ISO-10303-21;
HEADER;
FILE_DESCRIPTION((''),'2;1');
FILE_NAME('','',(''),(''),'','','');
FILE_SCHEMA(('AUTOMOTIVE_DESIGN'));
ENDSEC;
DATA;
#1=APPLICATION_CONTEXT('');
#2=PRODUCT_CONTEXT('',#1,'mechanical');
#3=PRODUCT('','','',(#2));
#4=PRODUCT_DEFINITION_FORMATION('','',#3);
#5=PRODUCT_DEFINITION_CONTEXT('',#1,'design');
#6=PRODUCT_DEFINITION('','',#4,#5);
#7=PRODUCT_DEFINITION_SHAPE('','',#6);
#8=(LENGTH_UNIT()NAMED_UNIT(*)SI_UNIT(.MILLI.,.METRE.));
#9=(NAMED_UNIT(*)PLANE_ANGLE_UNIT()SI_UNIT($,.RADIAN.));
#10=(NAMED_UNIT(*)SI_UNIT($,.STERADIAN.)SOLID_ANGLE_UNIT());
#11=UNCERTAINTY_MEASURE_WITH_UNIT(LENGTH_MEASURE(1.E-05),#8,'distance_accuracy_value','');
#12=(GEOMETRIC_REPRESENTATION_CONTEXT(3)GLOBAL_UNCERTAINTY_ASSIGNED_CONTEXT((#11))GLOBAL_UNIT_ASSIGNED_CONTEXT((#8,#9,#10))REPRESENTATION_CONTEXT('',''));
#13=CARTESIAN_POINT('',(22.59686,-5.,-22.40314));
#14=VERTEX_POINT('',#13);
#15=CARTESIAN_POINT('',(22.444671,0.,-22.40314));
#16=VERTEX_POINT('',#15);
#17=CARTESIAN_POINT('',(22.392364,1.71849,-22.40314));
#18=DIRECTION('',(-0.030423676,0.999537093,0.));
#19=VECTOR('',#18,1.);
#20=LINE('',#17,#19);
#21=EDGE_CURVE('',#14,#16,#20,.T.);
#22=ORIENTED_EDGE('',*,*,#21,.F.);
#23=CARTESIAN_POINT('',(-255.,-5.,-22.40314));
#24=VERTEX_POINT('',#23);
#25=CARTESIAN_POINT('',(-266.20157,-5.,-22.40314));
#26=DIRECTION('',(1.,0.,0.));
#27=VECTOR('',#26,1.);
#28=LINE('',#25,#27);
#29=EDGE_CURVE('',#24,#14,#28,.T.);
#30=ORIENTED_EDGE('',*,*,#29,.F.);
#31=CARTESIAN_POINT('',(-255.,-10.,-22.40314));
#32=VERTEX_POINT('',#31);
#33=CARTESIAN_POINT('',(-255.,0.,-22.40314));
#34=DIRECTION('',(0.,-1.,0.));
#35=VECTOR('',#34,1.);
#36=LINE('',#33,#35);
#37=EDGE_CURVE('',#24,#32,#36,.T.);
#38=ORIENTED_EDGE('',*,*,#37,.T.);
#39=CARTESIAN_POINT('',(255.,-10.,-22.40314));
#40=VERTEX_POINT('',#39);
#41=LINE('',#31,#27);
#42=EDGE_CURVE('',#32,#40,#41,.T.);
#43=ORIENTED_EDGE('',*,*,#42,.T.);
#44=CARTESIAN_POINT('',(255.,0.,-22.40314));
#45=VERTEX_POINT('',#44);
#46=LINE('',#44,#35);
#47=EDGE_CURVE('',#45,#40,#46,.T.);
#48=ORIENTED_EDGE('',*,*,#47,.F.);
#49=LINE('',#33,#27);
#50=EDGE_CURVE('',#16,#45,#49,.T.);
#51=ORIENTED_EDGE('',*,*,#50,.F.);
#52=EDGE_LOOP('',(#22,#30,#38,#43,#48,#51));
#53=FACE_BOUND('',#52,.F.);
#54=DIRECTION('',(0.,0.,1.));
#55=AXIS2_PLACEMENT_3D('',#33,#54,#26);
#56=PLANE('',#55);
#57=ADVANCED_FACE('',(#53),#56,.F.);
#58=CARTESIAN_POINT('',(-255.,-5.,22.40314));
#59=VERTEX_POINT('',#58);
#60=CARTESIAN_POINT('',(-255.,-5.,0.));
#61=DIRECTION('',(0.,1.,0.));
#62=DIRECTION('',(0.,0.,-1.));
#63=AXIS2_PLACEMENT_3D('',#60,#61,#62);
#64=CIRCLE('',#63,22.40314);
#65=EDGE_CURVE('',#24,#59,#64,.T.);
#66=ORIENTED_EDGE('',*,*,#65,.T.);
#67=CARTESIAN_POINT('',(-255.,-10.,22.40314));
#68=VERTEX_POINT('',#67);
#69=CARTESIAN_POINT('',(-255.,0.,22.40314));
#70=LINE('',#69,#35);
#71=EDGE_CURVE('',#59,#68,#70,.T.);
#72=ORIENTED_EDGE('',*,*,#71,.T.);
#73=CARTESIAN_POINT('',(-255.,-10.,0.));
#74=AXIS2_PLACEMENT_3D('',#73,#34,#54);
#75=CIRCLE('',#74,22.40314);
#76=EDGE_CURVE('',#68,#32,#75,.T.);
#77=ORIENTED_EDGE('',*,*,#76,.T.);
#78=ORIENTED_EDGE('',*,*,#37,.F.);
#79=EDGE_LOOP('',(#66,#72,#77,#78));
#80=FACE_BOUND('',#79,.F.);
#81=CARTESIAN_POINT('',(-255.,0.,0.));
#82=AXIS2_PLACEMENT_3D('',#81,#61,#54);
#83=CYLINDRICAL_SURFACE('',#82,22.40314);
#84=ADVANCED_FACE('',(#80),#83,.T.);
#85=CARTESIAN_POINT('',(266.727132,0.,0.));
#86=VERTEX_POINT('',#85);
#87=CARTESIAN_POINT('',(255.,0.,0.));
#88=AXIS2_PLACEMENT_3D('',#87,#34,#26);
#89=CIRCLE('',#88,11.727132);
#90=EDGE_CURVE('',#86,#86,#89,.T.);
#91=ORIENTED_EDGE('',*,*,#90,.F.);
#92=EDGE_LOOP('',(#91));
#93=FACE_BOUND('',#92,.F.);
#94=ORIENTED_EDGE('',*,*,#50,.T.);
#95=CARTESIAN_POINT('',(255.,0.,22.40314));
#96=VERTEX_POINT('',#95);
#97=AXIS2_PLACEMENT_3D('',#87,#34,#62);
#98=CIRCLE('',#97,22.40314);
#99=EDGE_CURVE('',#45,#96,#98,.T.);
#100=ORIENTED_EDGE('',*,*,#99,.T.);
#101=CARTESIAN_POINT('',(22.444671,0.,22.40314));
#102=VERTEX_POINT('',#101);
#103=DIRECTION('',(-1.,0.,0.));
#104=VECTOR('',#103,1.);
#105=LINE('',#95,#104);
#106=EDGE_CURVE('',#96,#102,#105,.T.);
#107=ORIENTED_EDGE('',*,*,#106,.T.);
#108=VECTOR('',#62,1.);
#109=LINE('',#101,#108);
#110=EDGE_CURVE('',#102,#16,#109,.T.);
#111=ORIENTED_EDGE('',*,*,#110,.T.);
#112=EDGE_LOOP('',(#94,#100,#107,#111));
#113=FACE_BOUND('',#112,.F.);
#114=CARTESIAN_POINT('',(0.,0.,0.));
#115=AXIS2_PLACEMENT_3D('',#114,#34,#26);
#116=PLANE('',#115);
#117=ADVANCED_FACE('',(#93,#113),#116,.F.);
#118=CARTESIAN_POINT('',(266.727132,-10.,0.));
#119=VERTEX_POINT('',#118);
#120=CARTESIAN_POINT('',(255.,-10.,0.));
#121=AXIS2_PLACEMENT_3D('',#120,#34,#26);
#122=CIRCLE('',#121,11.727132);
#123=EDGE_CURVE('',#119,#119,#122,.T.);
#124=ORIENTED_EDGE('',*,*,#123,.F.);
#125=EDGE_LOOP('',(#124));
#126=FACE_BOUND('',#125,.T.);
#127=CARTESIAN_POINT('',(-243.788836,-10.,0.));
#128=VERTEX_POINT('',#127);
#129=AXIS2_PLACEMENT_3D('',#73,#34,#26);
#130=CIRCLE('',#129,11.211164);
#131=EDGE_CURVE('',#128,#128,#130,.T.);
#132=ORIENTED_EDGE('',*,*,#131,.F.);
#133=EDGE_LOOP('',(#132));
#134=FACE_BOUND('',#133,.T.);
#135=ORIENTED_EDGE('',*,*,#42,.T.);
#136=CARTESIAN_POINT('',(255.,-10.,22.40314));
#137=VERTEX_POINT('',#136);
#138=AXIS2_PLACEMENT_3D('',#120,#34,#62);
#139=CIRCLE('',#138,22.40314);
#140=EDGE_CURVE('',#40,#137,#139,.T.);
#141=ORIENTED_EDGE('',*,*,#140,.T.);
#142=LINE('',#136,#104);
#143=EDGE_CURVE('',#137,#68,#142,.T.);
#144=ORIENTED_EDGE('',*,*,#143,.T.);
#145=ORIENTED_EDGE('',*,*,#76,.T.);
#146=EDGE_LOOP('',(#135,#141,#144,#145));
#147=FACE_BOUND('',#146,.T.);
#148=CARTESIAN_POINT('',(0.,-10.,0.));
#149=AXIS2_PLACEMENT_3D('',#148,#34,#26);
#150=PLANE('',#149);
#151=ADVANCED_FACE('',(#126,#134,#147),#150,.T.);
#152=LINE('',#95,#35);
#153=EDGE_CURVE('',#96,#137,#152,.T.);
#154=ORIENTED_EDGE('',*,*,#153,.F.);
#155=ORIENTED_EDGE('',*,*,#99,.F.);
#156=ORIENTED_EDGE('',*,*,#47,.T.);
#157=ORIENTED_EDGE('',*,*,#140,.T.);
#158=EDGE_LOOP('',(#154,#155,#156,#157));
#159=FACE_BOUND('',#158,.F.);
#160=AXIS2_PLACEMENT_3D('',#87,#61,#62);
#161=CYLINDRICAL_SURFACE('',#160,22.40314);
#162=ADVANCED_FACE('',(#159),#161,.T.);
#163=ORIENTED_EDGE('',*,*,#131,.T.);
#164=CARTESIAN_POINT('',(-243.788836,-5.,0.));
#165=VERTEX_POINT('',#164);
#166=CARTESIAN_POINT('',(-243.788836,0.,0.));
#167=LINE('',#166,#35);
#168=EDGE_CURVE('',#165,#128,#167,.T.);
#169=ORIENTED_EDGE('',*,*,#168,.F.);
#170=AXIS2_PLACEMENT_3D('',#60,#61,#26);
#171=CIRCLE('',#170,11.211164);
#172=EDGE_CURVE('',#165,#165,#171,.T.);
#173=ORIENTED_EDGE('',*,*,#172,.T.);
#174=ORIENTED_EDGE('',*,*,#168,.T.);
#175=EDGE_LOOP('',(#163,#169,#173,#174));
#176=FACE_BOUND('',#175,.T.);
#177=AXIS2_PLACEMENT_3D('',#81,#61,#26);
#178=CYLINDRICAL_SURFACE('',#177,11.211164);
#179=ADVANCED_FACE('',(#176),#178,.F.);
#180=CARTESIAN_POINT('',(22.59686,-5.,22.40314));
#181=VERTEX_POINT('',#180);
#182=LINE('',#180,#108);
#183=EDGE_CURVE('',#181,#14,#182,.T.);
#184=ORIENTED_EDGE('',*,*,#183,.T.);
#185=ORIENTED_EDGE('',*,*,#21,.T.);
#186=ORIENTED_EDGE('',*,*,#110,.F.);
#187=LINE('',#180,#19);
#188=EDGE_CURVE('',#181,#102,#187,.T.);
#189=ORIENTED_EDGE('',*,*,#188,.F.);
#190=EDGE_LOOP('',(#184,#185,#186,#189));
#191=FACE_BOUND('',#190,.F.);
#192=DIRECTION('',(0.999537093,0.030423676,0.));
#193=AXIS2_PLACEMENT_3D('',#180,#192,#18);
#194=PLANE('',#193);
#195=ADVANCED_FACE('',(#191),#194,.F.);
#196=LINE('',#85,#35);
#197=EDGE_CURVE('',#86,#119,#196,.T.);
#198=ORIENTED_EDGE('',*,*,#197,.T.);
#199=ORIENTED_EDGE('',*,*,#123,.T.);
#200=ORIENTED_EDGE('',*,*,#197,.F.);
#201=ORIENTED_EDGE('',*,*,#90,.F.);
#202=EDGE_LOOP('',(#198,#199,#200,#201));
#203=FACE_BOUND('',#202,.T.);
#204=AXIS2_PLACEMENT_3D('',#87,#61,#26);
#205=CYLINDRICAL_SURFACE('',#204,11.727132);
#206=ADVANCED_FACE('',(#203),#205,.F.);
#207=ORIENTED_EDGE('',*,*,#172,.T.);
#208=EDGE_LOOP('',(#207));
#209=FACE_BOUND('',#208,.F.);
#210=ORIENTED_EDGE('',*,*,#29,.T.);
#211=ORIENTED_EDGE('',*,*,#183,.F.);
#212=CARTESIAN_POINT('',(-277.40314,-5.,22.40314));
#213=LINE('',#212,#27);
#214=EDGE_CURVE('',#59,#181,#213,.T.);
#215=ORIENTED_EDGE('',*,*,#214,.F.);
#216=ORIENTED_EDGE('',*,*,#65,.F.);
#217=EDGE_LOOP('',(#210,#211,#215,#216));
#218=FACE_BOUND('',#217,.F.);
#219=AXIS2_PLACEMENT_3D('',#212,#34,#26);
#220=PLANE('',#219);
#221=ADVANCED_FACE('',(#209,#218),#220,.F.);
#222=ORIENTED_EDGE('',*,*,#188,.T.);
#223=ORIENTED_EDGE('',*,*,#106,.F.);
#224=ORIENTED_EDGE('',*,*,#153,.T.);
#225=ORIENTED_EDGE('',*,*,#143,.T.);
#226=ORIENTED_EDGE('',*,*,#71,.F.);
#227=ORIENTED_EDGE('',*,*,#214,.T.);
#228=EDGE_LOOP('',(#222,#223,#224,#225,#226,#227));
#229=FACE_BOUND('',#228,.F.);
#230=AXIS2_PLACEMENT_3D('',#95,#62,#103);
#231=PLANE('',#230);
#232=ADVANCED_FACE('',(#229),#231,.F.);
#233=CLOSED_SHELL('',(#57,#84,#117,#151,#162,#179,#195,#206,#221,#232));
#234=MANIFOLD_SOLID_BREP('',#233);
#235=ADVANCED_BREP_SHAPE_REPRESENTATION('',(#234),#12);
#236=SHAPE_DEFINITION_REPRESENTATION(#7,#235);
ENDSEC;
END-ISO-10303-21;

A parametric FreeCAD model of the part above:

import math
import FreeCAD as App
import Part
import Sketcher

V = App.Vector
Q = App.Units.Quantity


def add_polygon(sketch, points):
    """Adds a closed chain of lines whose ends are joined by coincident constraints."""
    first, n = sketch.GeometryCount, len(points)
    for a, b in zip(points, points[1:] + points[:1]):
        sketch.addGeometry(Part.LineSegment(App.Vector(*a, 0), App.Vector(*b, 0)), False)
    for i in range(n):
        sketch.addConstraint(Sketcher.Constraint("Coincident", first + i, 2, first + (i + 1) % n, 1))

doc = App.newDocument("Part")
body = doc.addObject("PartDesign::Body", "Body")

# Sketch on XZ plane
sketch1 = body.newObject("Sketcher::SketchObject", "Sketch")
sketch1.AttachmentSupport = (doc.getObject("XZ_Plane"), [""])
sketch1.MapMode = "FlatFace"
sketch1.addGeometry(Part.ArcOfCircle(Part.Circle(V(255, 0, 0), V(0, 0, 1), 22), math.radians(-90), math.radians(90)), False)
sketch1.addGeometry(Part.LineSegment(V(255, 22, 0), V(-255, 22, 0)), False)
sketch1.addGeometry(Part.ArcOfCircle(Part.Circle(V(-255, 0, 0), V(0, 0, 1), 22), math.radians(90), math.radians(270)), False)
sketch1.addGeometry(Part.LineSegment(V(-255, -22, 0), V(255, -22, 0)), False)
sketch1.addGeometry(Part.Circle(V(-255, 0, 0), V(0, 0, 1), 11), False)
sketch1.addGeometry(Part.Circle(V(255, 0, 0), V(0, 0, 1), 12), False)
sketch1.addConstraint(Sketcher.Constraint("Tangent", 0, 2, 1, 1))
sketch1.addConstraint(Sketcher.Constraint("Tangent", 1, 2, 2, 1))
sketch1.addConstraint(Sketcher.Constraint("Tangent", 2, 2, 3, 1))
sketch1.addConstraint(Sketcher.Constraint("Tangent", 3, 2, 0, 1))
sketch1.addConstraint(Sketcher.Constraint("Horizontal", 1))
sketch1.addConstraint(Sketcher.Constraint("Horizontal", 3))
sketch1.addConstraint(Sketcher.Constraint("Coincident", 4, 3, 2, 3))
sketch1.addConstraint(Sketcher.Constraint("Coincident", 5, 3, 0, 3))
sketch1.addConstraint(Sketcher.Constraint("Symmetric", 0, 3, 2, 3, -1, 1))
sketch1.addConstraint(Sketcher.Constraint("DistanceX", 1, 2, 1, 1, Q("510 mm")))
sketch1.addConstraint(Sketcher.Constraint("Radius", 0, Q("22.40314 mm")))
sketch1.addConstraint(Sketcher.Constraint("Diameter", 4, Q("22.422328 mm")))
sketch1.addConstraint(Sketcher.Constraint("Diameter", 5, Q("23.454263 mm")))
pad1 = body.newObject("PartDesign::Pad", "Pad")
pad1.Profile = sketch1
pad1.Length = 10

# Sketch on XY plane
sketch2 = body.newObject("Sketcher::SketchObject", "Sketch001")
sketch2.AttachmentSupport = (doc.getObject("XY_Plane"), [""])
sketch2.MapMode = "FlatFace"
sketch2.AttachmentOffset = App.Placement(V(0, 0, 22.40314), App.Rotation())
add_polygon(sketch2, [(22, 0), (22, 11), (-277, 11), (-277, -5), (23, -5)])  # lines 0-4
sketch2.addConstraint(Sketcher.Constraint("Horizontal", 1))
sketch2.addConstraint(Sketcher.Constraint("Vertical", 2))
sketch2.addConstraint(Sketcher.Constraint("Horizontal", 3))
sketch2.addConstraint(Sketcher.Constraint("PointOnObject", 4, 2, -1))
sketch2.addConstraint(Sketcher.Constraint("Parallel", 0, 4))
sketch2.addConstraint(Sketcher.Constraint("DistanceX", 3, 1, 3, 2, Q("300 mm")))
sketch2.addConstraint(Sketcher.Constraint("DistanceY", 2, 2, -1, 1, Q("5 mm")))
sketch2.addConstraint(Sketcher.Constraint("DistanceX", -1, 1, 0, 2, Q("22.115001 mm")))
sketch2.addConstraint(Sketcher.Constraint("DistanceX", 1, 2, 1, 1, Q("299.518141 mm")))
sketch2.addConstraint(Sketcher.Constraint("Distance", 0, Q("10.835972 mm")))
pocket1 = body.newObject("PartDesign::Pocket", "Pocket")
pocket1.Profile = sketch2
pocket1.Length = 150

doc.recompute()
